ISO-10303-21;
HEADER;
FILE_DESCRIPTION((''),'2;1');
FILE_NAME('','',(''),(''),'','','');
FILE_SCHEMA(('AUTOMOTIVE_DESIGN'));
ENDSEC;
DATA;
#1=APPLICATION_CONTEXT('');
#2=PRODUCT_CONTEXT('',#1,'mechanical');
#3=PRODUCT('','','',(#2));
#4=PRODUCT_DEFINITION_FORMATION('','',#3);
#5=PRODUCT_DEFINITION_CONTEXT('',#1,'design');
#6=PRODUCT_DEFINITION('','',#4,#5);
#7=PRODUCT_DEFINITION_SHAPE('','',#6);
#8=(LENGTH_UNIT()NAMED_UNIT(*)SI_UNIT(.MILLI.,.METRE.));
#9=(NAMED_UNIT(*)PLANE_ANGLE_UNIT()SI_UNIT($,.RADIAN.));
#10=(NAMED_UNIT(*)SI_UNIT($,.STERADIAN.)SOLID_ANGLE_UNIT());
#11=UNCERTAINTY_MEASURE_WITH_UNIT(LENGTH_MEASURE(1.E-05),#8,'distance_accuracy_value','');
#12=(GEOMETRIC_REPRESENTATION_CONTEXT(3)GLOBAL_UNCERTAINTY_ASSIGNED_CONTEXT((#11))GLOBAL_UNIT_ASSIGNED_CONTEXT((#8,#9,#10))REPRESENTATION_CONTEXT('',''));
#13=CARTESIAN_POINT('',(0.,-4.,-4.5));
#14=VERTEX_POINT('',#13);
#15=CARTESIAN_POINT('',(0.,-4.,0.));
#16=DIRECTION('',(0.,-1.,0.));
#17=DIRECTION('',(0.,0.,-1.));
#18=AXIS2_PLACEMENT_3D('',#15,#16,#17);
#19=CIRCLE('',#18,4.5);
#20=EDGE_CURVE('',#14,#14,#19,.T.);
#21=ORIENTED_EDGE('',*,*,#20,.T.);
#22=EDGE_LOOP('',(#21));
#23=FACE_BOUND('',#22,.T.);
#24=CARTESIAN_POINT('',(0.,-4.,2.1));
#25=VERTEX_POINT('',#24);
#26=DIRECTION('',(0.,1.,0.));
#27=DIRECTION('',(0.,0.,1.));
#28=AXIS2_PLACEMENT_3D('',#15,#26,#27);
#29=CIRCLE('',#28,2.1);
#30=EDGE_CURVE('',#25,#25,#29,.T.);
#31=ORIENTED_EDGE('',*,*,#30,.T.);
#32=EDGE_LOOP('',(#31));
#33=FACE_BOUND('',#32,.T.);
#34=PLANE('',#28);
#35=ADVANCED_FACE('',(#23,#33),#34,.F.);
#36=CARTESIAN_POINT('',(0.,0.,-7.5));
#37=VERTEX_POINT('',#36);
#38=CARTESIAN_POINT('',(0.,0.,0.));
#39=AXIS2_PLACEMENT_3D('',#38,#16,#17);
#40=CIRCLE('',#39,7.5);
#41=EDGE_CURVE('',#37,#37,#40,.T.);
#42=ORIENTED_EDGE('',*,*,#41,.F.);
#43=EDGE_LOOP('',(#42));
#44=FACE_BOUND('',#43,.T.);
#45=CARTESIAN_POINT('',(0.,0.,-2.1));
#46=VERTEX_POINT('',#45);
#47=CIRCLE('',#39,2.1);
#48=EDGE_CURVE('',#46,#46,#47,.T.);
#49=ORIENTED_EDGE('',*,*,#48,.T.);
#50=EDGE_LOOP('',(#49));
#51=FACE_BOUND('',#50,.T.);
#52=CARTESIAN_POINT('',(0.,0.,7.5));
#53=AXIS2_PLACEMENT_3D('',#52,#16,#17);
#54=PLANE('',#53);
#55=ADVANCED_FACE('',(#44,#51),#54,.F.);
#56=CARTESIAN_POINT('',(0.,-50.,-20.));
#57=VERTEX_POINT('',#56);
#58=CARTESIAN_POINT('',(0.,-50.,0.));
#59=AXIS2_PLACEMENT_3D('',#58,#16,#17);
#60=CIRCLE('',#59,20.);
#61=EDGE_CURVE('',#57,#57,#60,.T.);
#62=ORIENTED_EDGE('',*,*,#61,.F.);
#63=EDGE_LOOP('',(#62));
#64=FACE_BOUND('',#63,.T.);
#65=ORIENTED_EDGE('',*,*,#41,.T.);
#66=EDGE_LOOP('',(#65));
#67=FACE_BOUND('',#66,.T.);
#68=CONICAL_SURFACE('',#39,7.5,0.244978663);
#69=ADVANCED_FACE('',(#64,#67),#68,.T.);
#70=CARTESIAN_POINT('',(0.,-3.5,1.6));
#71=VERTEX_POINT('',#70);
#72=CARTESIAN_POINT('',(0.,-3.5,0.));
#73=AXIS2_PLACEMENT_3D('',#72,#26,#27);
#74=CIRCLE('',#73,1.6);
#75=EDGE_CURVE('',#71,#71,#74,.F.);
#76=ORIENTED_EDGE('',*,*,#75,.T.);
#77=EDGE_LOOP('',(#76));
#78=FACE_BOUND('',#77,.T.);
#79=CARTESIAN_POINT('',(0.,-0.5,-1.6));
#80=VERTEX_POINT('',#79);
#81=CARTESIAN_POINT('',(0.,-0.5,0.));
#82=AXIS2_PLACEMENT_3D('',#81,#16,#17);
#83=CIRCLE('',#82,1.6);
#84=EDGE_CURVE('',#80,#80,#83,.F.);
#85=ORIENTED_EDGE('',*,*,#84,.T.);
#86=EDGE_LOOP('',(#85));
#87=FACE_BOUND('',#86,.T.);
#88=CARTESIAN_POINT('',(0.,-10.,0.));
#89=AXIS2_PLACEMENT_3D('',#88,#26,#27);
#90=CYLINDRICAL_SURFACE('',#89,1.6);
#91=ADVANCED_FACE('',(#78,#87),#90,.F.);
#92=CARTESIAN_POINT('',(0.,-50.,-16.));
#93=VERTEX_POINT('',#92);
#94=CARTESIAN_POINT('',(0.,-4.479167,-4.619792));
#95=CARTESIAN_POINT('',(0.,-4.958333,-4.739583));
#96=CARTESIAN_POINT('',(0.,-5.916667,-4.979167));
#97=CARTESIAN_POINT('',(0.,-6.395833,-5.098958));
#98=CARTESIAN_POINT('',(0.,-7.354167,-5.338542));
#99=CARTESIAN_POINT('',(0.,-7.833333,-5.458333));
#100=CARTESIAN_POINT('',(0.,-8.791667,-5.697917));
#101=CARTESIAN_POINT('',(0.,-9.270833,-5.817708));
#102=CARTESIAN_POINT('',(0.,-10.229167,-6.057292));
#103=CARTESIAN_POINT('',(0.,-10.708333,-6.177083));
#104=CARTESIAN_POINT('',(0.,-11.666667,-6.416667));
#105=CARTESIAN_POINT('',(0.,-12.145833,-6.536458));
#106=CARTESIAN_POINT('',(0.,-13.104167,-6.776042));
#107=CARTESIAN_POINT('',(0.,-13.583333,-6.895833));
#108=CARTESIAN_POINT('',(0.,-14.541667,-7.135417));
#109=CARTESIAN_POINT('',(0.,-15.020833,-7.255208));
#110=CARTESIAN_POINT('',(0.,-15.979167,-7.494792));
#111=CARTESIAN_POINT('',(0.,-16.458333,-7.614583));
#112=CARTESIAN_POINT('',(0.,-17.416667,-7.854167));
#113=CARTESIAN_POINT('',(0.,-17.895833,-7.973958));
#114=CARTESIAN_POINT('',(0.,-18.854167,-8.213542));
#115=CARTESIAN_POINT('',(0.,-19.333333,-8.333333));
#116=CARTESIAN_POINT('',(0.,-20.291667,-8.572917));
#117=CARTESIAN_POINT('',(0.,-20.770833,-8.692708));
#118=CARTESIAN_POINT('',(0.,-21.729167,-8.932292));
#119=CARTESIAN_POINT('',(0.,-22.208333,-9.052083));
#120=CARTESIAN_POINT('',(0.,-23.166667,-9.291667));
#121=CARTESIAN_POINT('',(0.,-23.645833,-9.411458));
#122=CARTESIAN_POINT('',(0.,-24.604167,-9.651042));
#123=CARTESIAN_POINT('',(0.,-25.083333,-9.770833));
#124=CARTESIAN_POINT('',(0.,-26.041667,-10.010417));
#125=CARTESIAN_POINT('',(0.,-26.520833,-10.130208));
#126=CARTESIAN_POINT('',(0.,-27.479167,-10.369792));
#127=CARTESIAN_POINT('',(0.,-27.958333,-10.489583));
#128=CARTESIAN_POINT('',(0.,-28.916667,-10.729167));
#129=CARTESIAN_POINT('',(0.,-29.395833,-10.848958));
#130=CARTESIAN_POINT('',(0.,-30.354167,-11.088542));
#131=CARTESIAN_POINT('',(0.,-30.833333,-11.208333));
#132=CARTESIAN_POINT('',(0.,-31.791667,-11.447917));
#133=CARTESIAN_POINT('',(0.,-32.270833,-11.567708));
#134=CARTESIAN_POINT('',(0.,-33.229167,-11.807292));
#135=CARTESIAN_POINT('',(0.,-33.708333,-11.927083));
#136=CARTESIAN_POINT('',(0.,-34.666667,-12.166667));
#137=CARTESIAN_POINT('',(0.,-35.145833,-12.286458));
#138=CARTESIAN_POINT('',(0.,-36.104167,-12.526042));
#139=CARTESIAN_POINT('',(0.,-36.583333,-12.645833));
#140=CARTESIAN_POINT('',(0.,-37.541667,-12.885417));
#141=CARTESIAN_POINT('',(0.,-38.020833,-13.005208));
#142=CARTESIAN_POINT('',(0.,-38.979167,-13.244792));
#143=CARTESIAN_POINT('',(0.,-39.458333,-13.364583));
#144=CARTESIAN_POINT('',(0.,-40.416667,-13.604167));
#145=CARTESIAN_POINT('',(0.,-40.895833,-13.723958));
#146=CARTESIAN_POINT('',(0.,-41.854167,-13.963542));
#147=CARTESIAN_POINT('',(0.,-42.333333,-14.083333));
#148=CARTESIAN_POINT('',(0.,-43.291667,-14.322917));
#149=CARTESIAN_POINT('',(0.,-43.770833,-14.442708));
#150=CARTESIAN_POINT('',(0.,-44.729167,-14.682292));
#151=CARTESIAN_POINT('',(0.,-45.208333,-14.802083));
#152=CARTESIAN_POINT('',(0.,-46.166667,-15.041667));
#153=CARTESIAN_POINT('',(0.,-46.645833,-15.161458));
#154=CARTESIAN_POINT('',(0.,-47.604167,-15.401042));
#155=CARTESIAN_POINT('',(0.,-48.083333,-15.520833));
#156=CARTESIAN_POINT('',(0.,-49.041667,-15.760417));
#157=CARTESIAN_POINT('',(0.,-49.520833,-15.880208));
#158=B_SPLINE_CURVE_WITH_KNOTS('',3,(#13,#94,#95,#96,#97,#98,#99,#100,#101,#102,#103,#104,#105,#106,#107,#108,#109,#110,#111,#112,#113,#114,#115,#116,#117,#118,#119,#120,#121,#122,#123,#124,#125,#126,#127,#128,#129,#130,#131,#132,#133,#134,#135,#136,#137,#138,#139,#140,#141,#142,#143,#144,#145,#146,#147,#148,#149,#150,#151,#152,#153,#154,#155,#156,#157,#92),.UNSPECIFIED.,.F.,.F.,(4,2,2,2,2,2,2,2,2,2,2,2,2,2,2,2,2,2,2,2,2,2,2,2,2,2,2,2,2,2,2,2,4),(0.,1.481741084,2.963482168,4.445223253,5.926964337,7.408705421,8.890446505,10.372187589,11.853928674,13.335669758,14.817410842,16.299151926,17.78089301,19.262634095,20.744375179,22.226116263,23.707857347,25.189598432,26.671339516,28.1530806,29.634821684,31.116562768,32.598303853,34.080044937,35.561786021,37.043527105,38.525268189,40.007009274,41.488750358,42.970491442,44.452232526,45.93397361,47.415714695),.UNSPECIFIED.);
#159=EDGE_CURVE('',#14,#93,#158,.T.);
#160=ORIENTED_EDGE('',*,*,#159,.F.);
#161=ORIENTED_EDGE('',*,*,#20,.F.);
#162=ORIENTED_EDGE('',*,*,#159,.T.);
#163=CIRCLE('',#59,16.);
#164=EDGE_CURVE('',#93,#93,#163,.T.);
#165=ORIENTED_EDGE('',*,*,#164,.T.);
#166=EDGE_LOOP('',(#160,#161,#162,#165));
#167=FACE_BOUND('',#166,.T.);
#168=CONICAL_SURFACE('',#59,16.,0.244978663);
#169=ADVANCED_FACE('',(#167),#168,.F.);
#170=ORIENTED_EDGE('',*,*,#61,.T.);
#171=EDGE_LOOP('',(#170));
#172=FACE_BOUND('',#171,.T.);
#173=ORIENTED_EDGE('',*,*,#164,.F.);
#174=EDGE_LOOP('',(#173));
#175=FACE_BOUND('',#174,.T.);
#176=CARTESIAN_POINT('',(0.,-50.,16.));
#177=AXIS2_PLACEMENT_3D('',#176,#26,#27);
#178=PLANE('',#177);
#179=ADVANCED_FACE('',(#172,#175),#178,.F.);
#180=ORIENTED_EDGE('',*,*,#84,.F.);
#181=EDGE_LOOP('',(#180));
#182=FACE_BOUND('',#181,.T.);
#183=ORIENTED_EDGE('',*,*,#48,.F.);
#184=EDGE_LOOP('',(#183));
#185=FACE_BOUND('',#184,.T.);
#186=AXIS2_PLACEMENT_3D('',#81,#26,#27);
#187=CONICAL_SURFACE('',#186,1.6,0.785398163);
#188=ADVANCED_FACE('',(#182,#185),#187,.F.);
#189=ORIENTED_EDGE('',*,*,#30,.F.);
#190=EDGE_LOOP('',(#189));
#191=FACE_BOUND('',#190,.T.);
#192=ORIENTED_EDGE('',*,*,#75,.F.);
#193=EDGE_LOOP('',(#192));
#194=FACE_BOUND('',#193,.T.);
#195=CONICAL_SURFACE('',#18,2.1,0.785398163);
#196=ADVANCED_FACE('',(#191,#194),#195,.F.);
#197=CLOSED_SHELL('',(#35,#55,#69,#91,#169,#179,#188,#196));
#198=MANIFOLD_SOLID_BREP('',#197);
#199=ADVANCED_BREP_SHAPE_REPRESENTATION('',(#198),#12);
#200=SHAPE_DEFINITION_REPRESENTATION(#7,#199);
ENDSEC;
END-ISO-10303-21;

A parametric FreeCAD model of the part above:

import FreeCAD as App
import Part
import Sketcher

V = App.Vector
Q = App.Units.Quantity


def edges_at(feature, points):
    """Names of the edges that pass closest to the given points."""
    edges = feature.Shape.Edges
    near = lambda p: min(range(len(edges)), key=lambda i: edges[i].distToShape(Part.Vertex(*p))[0])
    return sorted({f"Edge{near(p) + 1}" for p in points})

doc = App.newDocument("Part")
body = doc.addObject("PartDesign::Body", "Body")

# Sketch on YZ plane
sketch1 = body.newObject("Sketcher::SketchObject", "Sketch")
sketch1.AttachmentSupport = (doc.getObject("YZ_Plane"), [""])
sketch1.MapMode = "FlatFace"
sketch1.addGeometry(Part.LineSegment(V(0, 0, 0), V(0, 7.5, 0)), False)
sketch1.addGeometry(Part.LineSegment(V(0, 7.5, 0), V(-50, 20, 0)), False)
sketch1.addGeometry(Part.LineSegment(V(-50, 20, 0), V(-50, 16, 0)), False)
sketch1.addGeometry(Part.LineSegment(V(-50, 16, 0), V(-4, 4.5, 0)), False)
sketch1.addGeometry(Part.LineSegment(V(-4, 4.5, 0), V(-4, 0, 0)), False)
sketch1.addGeometry(Part.LineSegment(V(-4, 0, 0), V(0, 0, 0)), False)
sketch1.addConstraint(Sketcher.Constraint("Coincident", 0, 2, 1, 1))
sketch1.addConstraint(Sketcher.Constraint("Coincident", 1, 2, 2, 1))
sketch1.addConstraint(Sketcher.Constraint("Coincident", 2, 2, 3, 1))
sketch1.addConstraint(Sketcher.Constraint("Coincident", 3, 2, 4, 1))
sketch1.addConstraint(Sketcher.Constraint("Coincident", 4, 2, 5, 1))
sketch1.addConstraint(Sketcher.Constraint("Coincident", 5, 2, 0, 1))
sketch1.addConstraint(Sketcher.Constraint("Vertical", 0))
sketch1.addConstraint(Sketcher.Constraint("Vertical", 2))
sketch1.addConstraint(Sketcher.Constraint("Vertical", 4))
sketch1.addConstraint(Sketcher.Constraint("Horizontal", 5))
sketch1.addConstraint(Sketcher.Constraint("Coincident", 5, 2, -1, 1))
sketch1.addConstraint(Sketcher.Constraint("Parallel", 1, 3))
sketch1.addConstraint(Sketcher.Constraint("Equal", 5, 2))
sketch1.addConstraint(Sketcher.Constraint("DistanceX", 5, 1, 5, 2, Q("4 mm")))
sketch1.addConstraint(Sketcher.Constraint("DistanceY", 0, 1, 0, 2, Q("7.5 mm")))
sketch1.addConstraint(Sketcher.Constraint("DistanceY", 4, 2, 4, 1, Q("4.5 mm")))
sketch1.addConstraint(Sketcher.Constraint("DistanceX", 1, 2, -1, 1, Q("50 mm")))
revolution = body.newObject("PartDesign::Revolution", "Revolution")
revolution.Profile = sketch1
revolution.ReferenceAxis = (sketch1, ["H_Axis"])
revolution.Angle = 360

# Sketch on XZ plane
sketch2 = body.newObject("Sketcher::SketchObject", "Sketch001")
sketch2.AttachmentSupport = (doc.getObject("XZ_Plane"), [""])
sketch2.MapMode = "FlatFace"
sketch2.addGeometry(Part.Circle(V(0, 0, 0), V(0, 0, 1), 1.6), False)
sketch2.addConstraint(Sketcher.Constraint("Coincident", 0, 3, -1, 1))
sketch2.addConstraint(Sketcher.Constraint("Diameter", 0, Q("3.2 mm")))
pocket1 = body.newObject("PartDesign::Pocket", "Pocket")
pocket1.Profile = sketch2
pocket1.Length = 10
pocket1.Reversed = True
doc.recompute()

chamfer = body.newObject("PartDesign::Chamfer", "Chamfer")
chamfer.Base = (pocket1, edges_at(pocket1, [(0, -4, -1.6), (0, 0, -1.6)]))
chamfer.Size = 0.5

doc.recompute()
